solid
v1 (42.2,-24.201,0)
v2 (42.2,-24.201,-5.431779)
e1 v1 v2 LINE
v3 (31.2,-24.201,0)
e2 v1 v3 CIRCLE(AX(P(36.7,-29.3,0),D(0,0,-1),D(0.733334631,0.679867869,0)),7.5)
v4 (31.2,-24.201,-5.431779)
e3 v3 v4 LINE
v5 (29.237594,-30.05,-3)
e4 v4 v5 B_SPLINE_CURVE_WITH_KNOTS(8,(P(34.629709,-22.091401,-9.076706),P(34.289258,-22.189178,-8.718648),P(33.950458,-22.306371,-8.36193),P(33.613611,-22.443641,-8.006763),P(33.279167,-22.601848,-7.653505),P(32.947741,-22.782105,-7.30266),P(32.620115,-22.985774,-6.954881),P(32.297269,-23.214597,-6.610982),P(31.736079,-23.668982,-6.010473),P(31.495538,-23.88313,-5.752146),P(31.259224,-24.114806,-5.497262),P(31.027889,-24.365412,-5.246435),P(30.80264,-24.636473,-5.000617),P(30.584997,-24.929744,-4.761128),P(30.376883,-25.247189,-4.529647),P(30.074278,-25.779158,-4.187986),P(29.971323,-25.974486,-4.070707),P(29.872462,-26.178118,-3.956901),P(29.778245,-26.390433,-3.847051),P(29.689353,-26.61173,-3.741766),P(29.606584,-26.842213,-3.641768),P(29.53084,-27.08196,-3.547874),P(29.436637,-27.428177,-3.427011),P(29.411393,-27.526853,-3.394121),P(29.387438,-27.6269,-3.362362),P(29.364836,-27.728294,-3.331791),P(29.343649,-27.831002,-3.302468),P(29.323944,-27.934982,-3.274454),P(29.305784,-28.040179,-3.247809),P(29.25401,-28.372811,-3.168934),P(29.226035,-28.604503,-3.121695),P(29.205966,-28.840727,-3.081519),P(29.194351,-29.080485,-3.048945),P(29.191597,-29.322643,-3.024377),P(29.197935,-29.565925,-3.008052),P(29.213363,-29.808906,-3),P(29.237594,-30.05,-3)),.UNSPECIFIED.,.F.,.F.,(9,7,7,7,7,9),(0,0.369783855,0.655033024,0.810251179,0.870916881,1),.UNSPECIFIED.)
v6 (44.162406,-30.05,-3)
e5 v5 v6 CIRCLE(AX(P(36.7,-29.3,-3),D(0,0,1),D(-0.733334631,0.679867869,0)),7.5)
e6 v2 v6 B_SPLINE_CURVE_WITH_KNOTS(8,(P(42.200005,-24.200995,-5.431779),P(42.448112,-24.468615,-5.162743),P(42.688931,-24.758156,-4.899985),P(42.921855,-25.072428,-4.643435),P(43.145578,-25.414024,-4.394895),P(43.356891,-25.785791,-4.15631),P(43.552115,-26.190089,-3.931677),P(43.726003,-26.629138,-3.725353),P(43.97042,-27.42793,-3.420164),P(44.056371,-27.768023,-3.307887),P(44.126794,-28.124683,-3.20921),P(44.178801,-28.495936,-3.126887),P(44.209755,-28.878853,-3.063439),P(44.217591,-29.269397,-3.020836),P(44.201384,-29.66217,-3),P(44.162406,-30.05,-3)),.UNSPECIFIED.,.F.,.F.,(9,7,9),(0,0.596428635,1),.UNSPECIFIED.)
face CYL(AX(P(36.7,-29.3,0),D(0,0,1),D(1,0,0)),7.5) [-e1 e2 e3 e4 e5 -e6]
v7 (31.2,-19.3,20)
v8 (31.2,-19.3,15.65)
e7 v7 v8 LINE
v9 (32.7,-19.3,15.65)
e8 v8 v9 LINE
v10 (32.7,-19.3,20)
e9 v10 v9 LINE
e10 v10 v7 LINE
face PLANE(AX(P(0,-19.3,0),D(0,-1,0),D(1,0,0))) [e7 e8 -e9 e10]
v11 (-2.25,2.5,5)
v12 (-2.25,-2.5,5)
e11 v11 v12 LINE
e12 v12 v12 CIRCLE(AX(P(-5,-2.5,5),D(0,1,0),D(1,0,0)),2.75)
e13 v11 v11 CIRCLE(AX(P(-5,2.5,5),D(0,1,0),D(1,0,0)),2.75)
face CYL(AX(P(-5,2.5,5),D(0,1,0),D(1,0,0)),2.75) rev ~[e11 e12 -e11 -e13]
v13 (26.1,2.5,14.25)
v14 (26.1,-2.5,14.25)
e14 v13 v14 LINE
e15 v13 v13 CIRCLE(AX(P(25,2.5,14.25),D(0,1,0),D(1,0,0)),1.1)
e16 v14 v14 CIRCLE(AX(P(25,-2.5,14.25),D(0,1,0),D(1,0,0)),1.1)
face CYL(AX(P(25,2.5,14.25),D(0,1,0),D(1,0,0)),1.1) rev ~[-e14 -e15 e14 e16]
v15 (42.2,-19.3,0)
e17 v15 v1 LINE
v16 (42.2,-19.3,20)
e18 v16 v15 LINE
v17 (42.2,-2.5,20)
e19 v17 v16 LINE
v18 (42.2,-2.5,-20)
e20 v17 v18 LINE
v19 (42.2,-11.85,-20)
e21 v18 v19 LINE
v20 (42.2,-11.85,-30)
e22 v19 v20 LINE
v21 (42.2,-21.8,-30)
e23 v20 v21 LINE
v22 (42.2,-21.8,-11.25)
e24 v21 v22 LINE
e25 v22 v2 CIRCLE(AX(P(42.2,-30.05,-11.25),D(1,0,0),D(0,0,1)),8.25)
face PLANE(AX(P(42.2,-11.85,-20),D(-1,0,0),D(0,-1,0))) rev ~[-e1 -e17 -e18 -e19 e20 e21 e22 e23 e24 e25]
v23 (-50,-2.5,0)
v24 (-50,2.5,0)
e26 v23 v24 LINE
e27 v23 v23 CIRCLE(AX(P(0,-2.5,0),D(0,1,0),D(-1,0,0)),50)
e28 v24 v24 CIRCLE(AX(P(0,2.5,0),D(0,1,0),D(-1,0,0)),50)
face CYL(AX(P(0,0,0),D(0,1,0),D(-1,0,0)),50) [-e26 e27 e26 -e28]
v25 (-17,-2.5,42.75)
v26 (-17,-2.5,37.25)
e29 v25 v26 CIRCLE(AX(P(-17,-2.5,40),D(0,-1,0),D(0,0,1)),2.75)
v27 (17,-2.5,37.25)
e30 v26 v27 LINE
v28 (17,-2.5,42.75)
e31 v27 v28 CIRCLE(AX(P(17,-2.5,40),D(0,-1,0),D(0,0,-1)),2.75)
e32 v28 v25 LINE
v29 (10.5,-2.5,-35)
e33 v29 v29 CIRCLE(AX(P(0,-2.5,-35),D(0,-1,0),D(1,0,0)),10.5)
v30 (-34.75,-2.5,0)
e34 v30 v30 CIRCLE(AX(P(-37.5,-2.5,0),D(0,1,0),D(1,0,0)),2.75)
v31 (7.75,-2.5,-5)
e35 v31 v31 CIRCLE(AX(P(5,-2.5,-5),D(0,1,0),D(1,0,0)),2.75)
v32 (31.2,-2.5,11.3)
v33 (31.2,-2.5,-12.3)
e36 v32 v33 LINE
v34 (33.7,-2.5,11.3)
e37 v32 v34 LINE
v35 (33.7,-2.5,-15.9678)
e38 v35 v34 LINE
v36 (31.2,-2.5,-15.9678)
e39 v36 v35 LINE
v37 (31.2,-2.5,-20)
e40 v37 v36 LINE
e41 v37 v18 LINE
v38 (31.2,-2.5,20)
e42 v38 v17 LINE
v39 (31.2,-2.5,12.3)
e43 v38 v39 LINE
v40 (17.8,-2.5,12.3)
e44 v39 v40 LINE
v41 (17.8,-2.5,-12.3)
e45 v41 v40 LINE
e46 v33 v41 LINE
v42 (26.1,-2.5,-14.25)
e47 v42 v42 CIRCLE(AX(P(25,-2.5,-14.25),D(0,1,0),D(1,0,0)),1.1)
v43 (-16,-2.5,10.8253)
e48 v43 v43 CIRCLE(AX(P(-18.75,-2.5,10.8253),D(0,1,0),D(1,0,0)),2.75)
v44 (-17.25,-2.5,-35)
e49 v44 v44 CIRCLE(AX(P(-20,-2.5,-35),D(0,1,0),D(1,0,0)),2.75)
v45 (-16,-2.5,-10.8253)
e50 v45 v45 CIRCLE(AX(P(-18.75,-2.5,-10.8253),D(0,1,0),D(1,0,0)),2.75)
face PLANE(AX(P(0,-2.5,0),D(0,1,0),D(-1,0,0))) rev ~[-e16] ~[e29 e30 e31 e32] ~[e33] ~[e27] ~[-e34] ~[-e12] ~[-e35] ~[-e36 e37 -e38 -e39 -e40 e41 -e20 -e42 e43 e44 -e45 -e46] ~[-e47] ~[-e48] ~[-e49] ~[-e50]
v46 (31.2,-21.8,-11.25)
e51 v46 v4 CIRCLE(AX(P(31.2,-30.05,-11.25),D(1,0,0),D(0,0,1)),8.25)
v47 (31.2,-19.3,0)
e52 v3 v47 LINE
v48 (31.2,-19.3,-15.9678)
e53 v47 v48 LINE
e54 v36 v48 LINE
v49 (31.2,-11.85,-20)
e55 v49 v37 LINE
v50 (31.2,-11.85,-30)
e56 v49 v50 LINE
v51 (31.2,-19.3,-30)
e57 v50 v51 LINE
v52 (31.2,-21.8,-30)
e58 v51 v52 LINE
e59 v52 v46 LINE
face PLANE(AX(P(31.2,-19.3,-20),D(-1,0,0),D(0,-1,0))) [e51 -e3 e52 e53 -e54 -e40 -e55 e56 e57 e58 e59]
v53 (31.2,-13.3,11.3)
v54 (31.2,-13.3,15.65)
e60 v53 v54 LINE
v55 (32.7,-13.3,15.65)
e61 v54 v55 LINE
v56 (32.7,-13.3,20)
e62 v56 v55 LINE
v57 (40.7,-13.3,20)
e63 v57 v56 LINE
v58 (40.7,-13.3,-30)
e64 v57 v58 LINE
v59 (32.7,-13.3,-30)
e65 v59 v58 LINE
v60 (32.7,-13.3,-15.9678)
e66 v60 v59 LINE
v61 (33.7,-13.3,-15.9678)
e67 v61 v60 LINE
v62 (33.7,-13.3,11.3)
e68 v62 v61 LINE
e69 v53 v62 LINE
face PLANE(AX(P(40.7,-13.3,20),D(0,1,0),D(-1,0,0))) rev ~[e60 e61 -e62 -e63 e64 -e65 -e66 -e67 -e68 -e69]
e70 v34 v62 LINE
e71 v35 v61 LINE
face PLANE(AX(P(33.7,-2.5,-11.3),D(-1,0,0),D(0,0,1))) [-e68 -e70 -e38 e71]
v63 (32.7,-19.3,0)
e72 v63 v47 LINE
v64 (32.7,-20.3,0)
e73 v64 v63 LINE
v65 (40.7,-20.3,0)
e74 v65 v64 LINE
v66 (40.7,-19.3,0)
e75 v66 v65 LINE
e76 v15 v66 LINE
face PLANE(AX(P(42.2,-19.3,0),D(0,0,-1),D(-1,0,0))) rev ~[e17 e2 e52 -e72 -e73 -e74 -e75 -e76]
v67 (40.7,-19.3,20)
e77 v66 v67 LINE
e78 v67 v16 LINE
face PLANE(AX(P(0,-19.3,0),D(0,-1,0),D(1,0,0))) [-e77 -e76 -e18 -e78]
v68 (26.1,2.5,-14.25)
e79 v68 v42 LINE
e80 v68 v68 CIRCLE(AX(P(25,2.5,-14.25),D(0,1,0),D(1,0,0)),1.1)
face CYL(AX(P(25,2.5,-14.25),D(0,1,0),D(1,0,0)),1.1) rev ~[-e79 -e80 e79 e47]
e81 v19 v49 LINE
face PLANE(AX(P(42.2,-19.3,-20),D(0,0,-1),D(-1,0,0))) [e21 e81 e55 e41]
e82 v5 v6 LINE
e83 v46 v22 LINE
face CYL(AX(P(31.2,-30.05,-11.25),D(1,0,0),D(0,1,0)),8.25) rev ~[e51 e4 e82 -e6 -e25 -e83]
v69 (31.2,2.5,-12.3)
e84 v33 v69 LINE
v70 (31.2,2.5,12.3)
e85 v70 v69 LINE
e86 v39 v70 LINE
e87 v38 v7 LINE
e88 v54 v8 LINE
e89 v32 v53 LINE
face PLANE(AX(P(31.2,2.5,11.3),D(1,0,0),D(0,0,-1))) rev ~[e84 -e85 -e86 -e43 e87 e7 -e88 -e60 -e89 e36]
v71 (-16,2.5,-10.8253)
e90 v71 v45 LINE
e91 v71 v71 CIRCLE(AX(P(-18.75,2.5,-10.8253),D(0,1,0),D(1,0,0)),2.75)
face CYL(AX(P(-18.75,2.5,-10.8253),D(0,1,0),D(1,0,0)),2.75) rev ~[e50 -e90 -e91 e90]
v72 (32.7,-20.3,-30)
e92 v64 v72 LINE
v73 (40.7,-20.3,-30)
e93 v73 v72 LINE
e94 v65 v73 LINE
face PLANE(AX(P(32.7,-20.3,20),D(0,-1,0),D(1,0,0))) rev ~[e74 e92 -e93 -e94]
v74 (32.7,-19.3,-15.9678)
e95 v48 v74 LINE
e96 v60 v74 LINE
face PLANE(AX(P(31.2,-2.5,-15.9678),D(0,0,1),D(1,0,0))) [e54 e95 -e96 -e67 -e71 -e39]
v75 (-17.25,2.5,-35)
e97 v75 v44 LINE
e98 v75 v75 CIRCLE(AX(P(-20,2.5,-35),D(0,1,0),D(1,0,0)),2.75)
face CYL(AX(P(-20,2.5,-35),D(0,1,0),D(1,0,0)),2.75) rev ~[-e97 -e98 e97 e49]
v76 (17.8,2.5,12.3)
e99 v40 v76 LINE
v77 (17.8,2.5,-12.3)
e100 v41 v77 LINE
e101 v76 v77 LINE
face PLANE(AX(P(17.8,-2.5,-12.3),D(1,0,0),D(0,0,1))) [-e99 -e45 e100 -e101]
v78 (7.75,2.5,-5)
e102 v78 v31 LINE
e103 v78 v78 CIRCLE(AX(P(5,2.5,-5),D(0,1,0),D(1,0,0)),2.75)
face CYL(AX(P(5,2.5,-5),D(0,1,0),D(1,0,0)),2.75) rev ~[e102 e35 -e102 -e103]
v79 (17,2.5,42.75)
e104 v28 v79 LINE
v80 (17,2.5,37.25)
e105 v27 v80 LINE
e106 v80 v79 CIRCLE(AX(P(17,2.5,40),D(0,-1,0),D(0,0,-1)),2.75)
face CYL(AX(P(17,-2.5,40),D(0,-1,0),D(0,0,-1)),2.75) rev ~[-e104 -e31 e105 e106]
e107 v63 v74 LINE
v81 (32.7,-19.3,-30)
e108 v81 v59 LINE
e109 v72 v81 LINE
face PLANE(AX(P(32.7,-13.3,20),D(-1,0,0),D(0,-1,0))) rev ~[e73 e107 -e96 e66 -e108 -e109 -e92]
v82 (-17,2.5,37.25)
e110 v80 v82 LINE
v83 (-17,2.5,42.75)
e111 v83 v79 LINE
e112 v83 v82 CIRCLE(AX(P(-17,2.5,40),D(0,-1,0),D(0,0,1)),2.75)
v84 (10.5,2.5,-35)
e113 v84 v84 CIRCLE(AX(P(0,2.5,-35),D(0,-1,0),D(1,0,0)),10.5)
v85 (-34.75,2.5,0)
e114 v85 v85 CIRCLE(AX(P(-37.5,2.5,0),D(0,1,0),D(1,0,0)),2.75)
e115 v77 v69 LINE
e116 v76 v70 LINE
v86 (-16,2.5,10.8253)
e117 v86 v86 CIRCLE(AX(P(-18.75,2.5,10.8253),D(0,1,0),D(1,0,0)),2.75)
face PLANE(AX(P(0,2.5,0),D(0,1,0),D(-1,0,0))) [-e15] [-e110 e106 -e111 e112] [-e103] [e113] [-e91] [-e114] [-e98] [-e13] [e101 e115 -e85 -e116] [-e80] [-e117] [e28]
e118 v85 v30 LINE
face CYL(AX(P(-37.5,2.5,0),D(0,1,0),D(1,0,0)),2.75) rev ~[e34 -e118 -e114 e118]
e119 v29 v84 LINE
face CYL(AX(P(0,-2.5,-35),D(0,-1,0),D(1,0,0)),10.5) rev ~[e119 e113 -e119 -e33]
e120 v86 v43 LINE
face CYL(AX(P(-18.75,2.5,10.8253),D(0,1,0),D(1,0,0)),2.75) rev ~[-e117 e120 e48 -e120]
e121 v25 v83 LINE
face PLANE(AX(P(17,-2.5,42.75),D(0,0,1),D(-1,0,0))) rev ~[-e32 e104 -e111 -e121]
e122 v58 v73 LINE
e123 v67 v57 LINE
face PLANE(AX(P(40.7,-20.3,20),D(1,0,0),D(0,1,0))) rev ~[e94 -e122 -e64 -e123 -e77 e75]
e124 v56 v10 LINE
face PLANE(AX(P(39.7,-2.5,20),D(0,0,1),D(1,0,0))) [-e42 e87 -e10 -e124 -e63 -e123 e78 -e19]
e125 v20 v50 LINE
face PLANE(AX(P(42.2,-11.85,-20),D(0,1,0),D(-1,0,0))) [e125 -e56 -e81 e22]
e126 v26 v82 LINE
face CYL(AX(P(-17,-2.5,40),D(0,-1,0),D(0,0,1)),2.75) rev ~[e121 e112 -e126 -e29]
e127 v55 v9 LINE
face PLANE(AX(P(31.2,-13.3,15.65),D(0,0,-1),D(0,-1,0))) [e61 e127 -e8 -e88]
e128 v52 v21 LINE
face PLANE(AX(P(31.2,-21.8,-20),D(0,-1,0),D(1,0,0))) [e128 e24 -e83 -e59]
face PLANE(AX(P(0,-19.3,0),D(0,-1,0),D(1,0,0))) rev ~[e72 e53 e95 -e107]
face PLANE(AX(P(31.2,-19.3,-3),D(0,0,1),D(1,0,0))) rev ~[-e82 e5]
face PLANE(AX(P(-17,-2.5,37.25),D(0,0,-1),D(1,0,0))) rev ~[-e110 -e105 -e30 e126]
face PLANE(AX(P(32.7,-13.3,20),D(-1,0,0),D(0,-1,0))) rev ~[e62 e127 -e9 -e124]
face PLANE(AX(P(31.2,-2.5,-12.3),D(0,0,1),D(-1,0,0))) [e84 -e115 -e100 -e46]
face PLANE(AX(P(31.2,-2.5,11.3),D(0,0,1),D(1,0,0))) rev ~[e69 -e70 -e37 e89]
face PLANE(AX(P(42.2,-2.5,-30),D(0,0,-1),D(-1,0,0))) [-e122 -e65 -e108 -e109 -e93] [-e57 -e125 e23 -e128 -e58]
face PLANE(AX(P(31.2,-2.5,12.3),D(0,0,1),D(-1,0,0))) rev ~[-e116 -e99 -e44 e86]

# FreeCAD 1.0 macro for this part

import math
import FreeCAD as App
import Part
import Sketcher
from FreeCAD import Vector
Q = App.Units.Quantity


def edges_at(feature, points):
    """Names of the edges that pass closest to the given points."""
    edges = feature.Shape.Edges
    near = lambda p: min(range(len(edges)), key=lambda i: edges[i].distToShape(Part.Vertex(*p))[0])
    return sorted({f"Edge{near(p) + 1}" for p in points})


def add_polygon(sketch, points):
    """Adds a closed chain of lines whose ends are joined by coincident constraints."""
    first, n = sketch.GeometryCount, len(points)
    for a, b in zip(points, points[1:] + points[:1]):
        sketch.addGeometry(Part.LineSegment(App.Vector(*a, 0), App.Vector(*b, 0)), False)
    for i in range(n):
        sketch.addConstraint(Sketcher.Constraint("Coincident", first + i, 2, first + (i + 1) % n, 1))

doc = App.newDocument("Part")
params = doc.addObject("Spreadsheet::Sheet", "Params")
for row, (alias, value) in enumerate([
    ("sketch1_diameter", "100 mm"),
    ("pad1_length", "5 mm"),
    ("sketch2_diameter", "5.5 mm"),
    ("pocket1_length", "10 mm"),
    ("sketch3_diameter", "2.2 mm"),
    ("sketch3_width", "12.4 mm"),
    ("sketch3_height", "22.6 mm"),
    ("pocket2_length", "10 mm"),
    ("sketch4_height", "40 mm"),
    ("sketch4_width", "6 mm"),
    ("pad2_length", "11.8 mm"),
    ("sketch5_width", "2.5 mm"),
    ("sketch5_height", "40 mm"),
    ("sketch5_height2", "8.7 mm"),
    ("pad3_length", "16.8 mm"),
    ("sketch6_width", "11 mm"),
    ("sketch6_height", "20 mm"),
    ("pad4_length", "2.5 mm"),
    ("sketch7_radius", "7.5 mm"),
    ("sketch7_width", "11 mm"),
    ("pad5_length", "3 mm"),
    ("fillet_radius", "8.25 mm"),
    ("sketch8_height", "9.95 mm"),
    ("sketch8_width", "11 mm"),
    ("sketch8_width2", "6 mm"),
    ("sketch8_height2", "5 mm"),
    ("sketch8_height3", "2.5 mm"),
    ("pad6_length", "10 mm"),
    ("sketch9_diameter", "5.5 mm"),
    ("pocket3_length", "10 mm"),
    ("sketch10_diameter", "21 mm"),
    ("pocket4_length", "10 mm"),
    ("sketch11_width", "8 mm"),
    ("sketch11_height", "7 mm"),
    ("sketch12_radius", "2.75 mm"),
    ("sketch13_width", "13.4 mm"),
    ("sketch13_height", "24.6 mm"),
    ("pocket7_length", "10 mm"),
    ("sketch14_width", "6 mm"),
    ("sketch14_height", "4.35 mm"),
    ("pocket8_length", "1.5 mm"),
    ("sketch15_diameter", "5.5 mm"),
    ("pocket9_length", "10 mm"),
], start=1):
    params.set(f"A{row}", alias)
    params.set(f"B{row}", "=" + value)
    params.setAlias(f"B{row}", alias)

body = doc.addObject("PartDesign::Body", "Body")

# Sketch on XZ plane
sketch1 = body.newObject("Sketcher::SketchObject", "Sketch")
sketch1.AttachmentSupport = (doc.getObject("XZ_Plane"), [""])
sketch1.MapMode = "FlatFace"
sketch1.addGeometry(Part.Circle(Vector(0, 0, 0), Vector(0, 0, 1), 50), False)
sketch1.addConstraint([
    Sketcher.Constraint("Coincident", 0, 3, -1, 1),
    Sketcher.Constraint("Diameter", 0, Q("100 mm")),
])
sketch1.setExpression("Constraints[1]", "Params.sketch1_diameter")
pad1 = body.newObject("PartDesign::Pad", "Pad")
pad1.Profile = sketch1
pad1.setExpression("Length", "Params.pad1_length")
pad1.Midplane = True

# Sketch on XZ plane
sketch2 = body.newObject("Sketcher::SketchObject", "Sketch001")
sketch2.AttachmentSupport = (doc.getObject("XZ_Plane"), [""])
sketch2.MapMode = "FlatFace"
sketch2.AttachmentOffset = App.Placement(Vector(0, 0, -2.5), App.Rotation())
sketch2.addGeometry([
    Part.Circle(Vector(5, -5, 0), Vector(0, 0, 1), 2.75),
    Part.Circle(Vector(-5, 5, 0), Vector(0, 0, 1), 2.75),
], False)
sketch2.addConstraint([
    Sketcher.Constraint("Equal", 0, 1),
    Sketcher.Constraint("Symmetric", 0, 3, 1, 3, -1, 1),
    Sketcher.Constraint("Diameter", 0, Q("5.5 mm")),
    Sketcher.Constraint("DistanceX", 1, 3, 0, 3, Q("10 mm")),
    Sketcher.Constraint("DistanceY", 0, 3, 1, 3, Q("10 mm")),
])
sketch2.setExpression("Constraints[2]", "Params.sketch2_diameter")
pocket1 = body.newObject("PartDesign::Pocket", "Pocket")
pocket1.Profile = sketch2
pocket1.setExpression("Length", "Params.pocket1_length")
pocket1.Reversed = True

# Sketch on XZ plane
sketch3 = body.newObject("Sketcher::SketchObject", "Sketch002")
sketch3.AttachmentSupport = (doc.getObject("XZ_Plane"), [""])
sketch3.MapMode = "FlatFace"
sketch3.AttachmentOffset = App.Placement(Vector(0, 0, -2.5), App.Rotation())
add_polygon(sketch3, [(18.8, -11.3), (18.8, 11.3), (31.2, 11.3), (31.2, -11.3)])  # lines 0-3
sketch3.addGeometry(Part.Circle(Vector(25, -14.25, 0), Vector(0, 0, 1), 1.1), False)  # 4
sketch3.addGeometry(Part.Circle(Vector(25, 14.25, 0), Vector(0, 0, 1), 1.1), False)  # 5
sketch3.addConstraint([
    Sketcher.Constraint("Vertical", 0),
    Sketcher.Constraint("Horizontal", 1),
    Sketcher.Constraint("Vertical", 2),
    Sketcher.Constraint("Horizontal", 3),
    Sketcher.Constraint("Equal", 4, 5),
    Sketcher.Constraint("Symmetric", 4, 3, 5, 3, -1),
    Sketcher.Constraint("Diameter", 4, Q("2.2 mm")),
    Sketcher.Constraint("DistanceX", 1, 1, 1, 2, Q("12.4 mm")),
    Sketcher.Constraint("DistanceY", 0, 1, 0, 2, Q("22.6 mm")),
    Sketcher.Constraint("DistanceX", -1, 1, 4, 3, Q("25 mm")),
    Sketcher.Constraint("DistanceY", 4, 3, -1, 1, Q("14.25 mm")),
    Sketcher.Constraint("DistanceX", -1, 1, 0, 2, Q("18.8 mm")),
    Sketcher.Constraint("DistanceY", -1, 1, 0, 2, Q("11.3 mm")),
])
sketch3.setExpression("Constraints[10]", "Params.sketch3_diameter")
sketch3.setExpression("Constraints[11]", "Params.sketch3_width")
sketch3.setExpression("Constraints[12]", "Params.sketch3_height")
pocket2 = body.newObject("PartDesign::Pocket", "Pocket001")
pocket2.Profile = sketch3
pocket2.setExpression("Length", "Params.pocket2_length")
pocket2.Reversed = True

# Sketch on XZ plane
sketch4 = body.newObject("Sketcher::SketchObject", "Sketch003")
sketch4.AttachmentSupport = (doc.getObject("XZ_Plane"), [""])
sketch4.MapMode = "FlatFace"
sketch4.AttachmentOffset = App.Placement(Vector(0, 0, 2.5), App.Rotation())
add_polygon(sketch4, [(33.7, 20), (33.7, -20), (39.7, -20), (39.7, 20)])  # lines 0-3
sketch4.addConstraint([
    Sketcher.Constraint("Vertical", 0),
    Sketcher.Constraint("Horizontal", 1),
    Sketcher.Constraint("Vertical", 2),
    Sketcher.Constraint("Horizontal", 3),
    Sketcher.Constraint("DistanceY", 0, 2, 0, 1, Q("40 mm")),
    Sketcher.Constraint("DistanceY", 0, 2, -1, 1, Q("20 mm")),
    Sketcher.Constraint("DistanceX", 1, 1, 1, 2, Q("6 mm")),
    Sketcher.Constraint("DistanceX", -1, 1, 0, 2, Q("33.7 mm")),
])
sketch4.setExpression("Constraints[8]", "Params.sketch4_height")
sketch4.setExpression("Constraints[10]", "Params.sketch4_width")
pad2 = body.newObject("PartDesign::Pad", "Pad001")
pad2.Profile = sketch4
pad2.setExpression("Length", "Params.pad2_length")

# Sketch on XZ plane
sketch5 = body.newObject("Sketcher::SketchObject", "Sketch004")
sketch5.AttachmentSupport = (doc.getObject("XZ_Plane"), [""])
sketch5.MapMode = "FlatFace"
sketch5.AttachmentOffset = App.Placement(Vector(0, 0, 2.5), App.Rotation())
add_polygon(sketch5, [(42.2, 20), (39.7, 20), (39.7, -20), (42.2, -20)])  # lines 0-3
add_polygon(sketch5, [(33.7, -15.9678), (31.2, -15.9678), (31.2, -20), (33.7, -20)])  # lines 4-7
add_polygon(sketch5, [(31.2, 20), (31.2, 11.3), (33.7, 11.3), (33.7, 20)])  # lines 8-11
sketch5.addConstraint([
    Sketcher.Constraint("Horizontal", 0),
    Sketcher.Constraint("Vertical", 1),
    Sketcher.Constraint("Horizontal", 2),
    Sketcher.Constraint("Vertical", 3),
    Sketcher.Constraint("Horizontal", 4),
    Sketcher.Constraint("Vertical", 5),
    Sketcher.Constraint("Horizontal", 6),
    Sketcher.Constraint("Vertical", 7),
    Sketcher.Constraint("Vertical", 8),
    Sketcher.Constraint("Horizontal", 9),
    Sketcher.Constraint("Vertical", 10),
    Sketcher.Constraint("Horizontal", 11),
    Sketcher.Constraint("Symmetric", 6, 2, 10, 2, -1),
    Sketcher.Constraint("Horizontal", 2, 2, 5, 2),
    Sketcher.Constraint("Horizontal", 3, 2, 10, 2),
    Sketcher.Constraint("Vertical", 5, 2, 8, 2),
    Sketcher.Constraint("Equal", 2, 4),
    Sketcher.Constraint("DistanceX", 0, 2, 0, 1, Q("2.5 mm")),
    Sketcher.Constraint("DistanceY", 1, 2, 1, 1, Q("40 mm")),
    Sketcher.Constraint("DistanceY", 8, 2, 8, 1, Q("8.7 mm")),
    Sketcher.Constraint("DistanceX", 4, 2, 2, 2, Q("11 mm")),
    Sketcher.Constraint("DistanceX", -1, 1, 0, 2, Q("39.7 mm")),
    Sketcher.Constraint("DistanceY", 5, 2, 5, 1, Q("4.0322 mm")),
])
sketch5.setExpression("Constraints[29]", "Params.sketch5_width")
sketch5.setExpression("Constraints[30]", "Params.sketch5_height")
sketch5.setExpression("Constraints[31]", "Params.sketch5_height2")
pad3 = body.newObject("PartDesign::Pad", "Pad002")
pad3.Profile = sketch5
pad3.setExpression("Length", "Params.pad3_length")

# Sketch on XZ plane
sketch6 = body.newObject("Sketcher::SketchObject", "Sketch005")
sketch6.AttachmentSupport = (doc.getObject("XZ_Plane"), [""])
sketch6.MapMode = "FlatFace"
sketch6.AttachmentOffset = App.Placement(Vector(0, 0, 19.3), App.Rotation())
add_polygon(sketch6, [(31.2, -20), (42.2, -20), (42.2, 0), (31.2, 0)])  # lines 0-3
sketch6.addConstraint([
    Sketcher.Constraint("Horizontal", 0),
    Sketcher.Constraint("Vertical", 1),
    Sketcher.Constraint("Horizontal", 2),
    Sketcher.Constraint("Vertical", 3),
    Sketcher.Constraint("PointOnObject", 1, 2, -1),
    Sketcher.Constraint("DistanceX", 0, 1, 0, 2, Q("11 mm")),
    Sketcher.Constraint("DistanceY", 1, 1, 1, 2, Q("20 mm")),
    Sketcher.Constraint("DistanceX", -1, 1, 0, 2, Q("42.2 mm")),
])
sketch6.setExpression("Constraints[9]", "Params.sketch6_width")
sketch6.setExpression("Constraints[10]", "Params.sketch6_height")
pad4 = body.newObject("PartDesign::Pad", "Pad003")
pad4.Profile = sketch6
pad4.setExpression("Length", "Params.pad4_length")

# Sketch on XY plane
sketch7 = body.newObject("Sketcher::SketchObject", "Sketch006")
sketch7.AttachmentSupport = (doc.getObject("XY_Plane"), [""])
sketch7.MapMode = "FlatFace"
sketch7.addGeometry([
    Part.ArcOfCircle(Part.Circle(Vector(36.7, -29.3, 0), Vector(0, 0, 1), 7.5), math.radians(137.166681), math.radians(402.833319)),
    Part.LineSegment(Vector(42.2, -24.201, 0), Vector(42.2, -21.8, 0)),
    Part.LineSegment(Vector(42.2, -21.8, 0), Vector(31.2, -21.8, 0)),
    Part.LineSegment(Vector(31.2, -21.8, 0), Vector(31.2, -24.201, 0)),
], False)
sketch7.addConstraint([
    Sketcher.Constraint("Coincident", 0, 2, 1, 1),
    Sketcher.Constraint("Coincident", 1, 2, 2, 1),
    Sketcher.Constraint("Coincident", 2, 2, 3, 1),
    Sketcher.Constraint("Coincident", 3, 2, 0, 1),
    Sketcher.Constraint("Vertical", 1),
    Sketcher.Constraint("Horizontal", 2),
    Sketcher.Constraint("Vertical", 3),
    Sketcher.Constraint("Horizontal", 0, 2, 3, 2),
    Sketcher.Constraint("Radius", 0, Q("7.5 mm")),
    Sketcher.Constraint("DistanceY", 0, 3, 1, 2, Q("7.5 mm")),
    Sketcher.Constraint("DistanceX", 2, 2, 2, 1, Q("11 mm")),
    Sketcher.Constraint("DistanceX", -1, 1, 0, 3, Q("36.7 mm")),
    Sketcher.Constraint("DistanceY", 0, 3, -1, 1, Q("29.3 mm")),
])
sketch7.setExpression("Constraints[8]", "Params.sketch7_radius")
sketch7.setExpression("Constraints[10]", "Params.sketch7_width")
pad5 = body.newObject("PartDesign::Pad", "Pad004")
pad5.Profile = sketch7
pad5.setExpression("Length", "Params.pad5_length")
pad5.Reversed = True
doc.recompute()

fillet = body.newObject("PartDesign::Fillet", "Fillet")
fillet.Base = (pad5, edges_at(pad5, [(36.7, -21.8, -3)]))
fillet.setExpression("Radius", "Params.fillet_radius")

# Sketch on XY plane
sketch8 = body.newObject("Sketcher::SketchObject", "Sketch007")
sketch8.AttachmentSupport = (doc.getObject("XY_Plane"), [""])
sketch8.MapMode = "FlatFace"
sketch8.AttachmentOffset = App.Placement(Vector(0, 0, -20), App.Rotation())
add_polygon(sketch8, [(31.2, -21.8), (31.2, -19.3), (31.2, -11.85), (42.2, -11.85), (42.2, -21.8)])  # lines 0-4
add_polygon(sketch8, [(33.7, -14.3), (33.7, -19.3), (39.7, -19.3), (39.7, -14.3)])  # lines 5-8
sketch8.addConstraint([
    Sketcher.Constraint("Vertical", 0),
    Sketcher.Constraint("Vertical", 1),
    Sketcher.Constraint("Horizontal", 2),
    Sketcher.Constraint("Vertical", 3),
    Sketcher.Constraint("Horizontal", 4),
    Sketcher.Constraint("Vertical", 5),
    Sketcher.Constraint("Horizontal", 6),
    Sketcher.Constraint("Vertical", 7),
    Sketcher.Constraint("Horizontal", 8),
    Sketcher.Constraint("Horizontal", 0, 2, 5, 2),
    Sketcher.Constraint("DistanceY", 3, 2, 3, 1, Q("9.95 mm")),
    Sketcher.Constraint("DistanceX", 2, 1, 2, 2, Q("11 mm")),
    Sketcher.Constraint("DistanceX", 6, 1, 6, 2, Q("6 mm")),
    Sketcher.Constraint("DistanceY", 5, 2, 5, 1, Q("5 mm")),
    Sketcher.Constraint("DistanceY", 0, 1, 0, 2, Q("2.5 mm")),
    Sketcher.Constraint("DistanceX", -1, 1, 0, 2, Q("31.2 mm")),
    Sketcher.Constraint("DistanceY", 0, 2, -1, 1, Q("19.3 mm")),
    Sketcher.Constraint("DistanceX", -1, 1, 5, 2, Q("33.7 mm")),
])
sketch8.setExpression("Constraints[19]", "Params.sketch8_height")
sketch8.setExpression("Constraints[20]", "Params.sketch8_width")
sketch8.setExpression("Constraints[21]", "Params.sketch8_width2")
sketch8.setExpression("Constraints[22]", "Params.sketch8_height2")
sketch8.setExpression("Constraints[23]", "Params.sketch8_height3")
pad6 = body.newObject("PartDesign::Pad", "Pad005")
pad6.Profile = sketch8
pad6.setExpression("Length", "Params.pad6_length")
pad6.Reversed = True

# Sketch on XZ plane
sketch9 = body.newObject("Sketcher::SketchObject", "Sketch008")
sketch9.AttachmentSupport = (doc.getObject("XZ_Plane"), [""])
sketch9.MapMode = "FlatFace"
sketch9.AttachmentOffset = App.Placement(Vector(0, 0, -2.5), App.Rotation())
sketch9.addGeometry([
    Part.Circle(Vector(-37.5, 0, 0), Vector(0, 0, 1), 2.75),
    Part.Circle(Vector(-18.75, -10.8253, 0), Vector(0, 0, 1), 2.75),
    Part.Circle(Vector(-18.75, 10.8253, 0), Vector(0, 0, 1), 2.75),
], False)
sketch9.addConstraint([
    Sketcher.Constraint("Equal", 0, 1),
    Sketcher.Constraint("Equal", 1, 2),
    Sketcher.Constraint("Symmetric", 1, 3, 2, 3, -1),
    Sketcher.Constraint("PointOnObject", 0, 3, -1),
    Sketcher.Constraint("Diameter", 0, Q("5.5 mm")),
    Sketcher.Constraint("DistanceX", 0, 3, -1, 1, Q("37.5 mm")),
    Sketcher.Constraint("DistanceX", 1, 3, -1, 1, Q("18.75 mm")),
    Sketcher.Constraint("DistanceY", 1, 3, -1, 1, Q("10.8253 mm")),
])
sketch9.setExpression("Constraints[4]", "Params.sketch9_diameter")
pocket3 = body.newObject("PartDesign::Pocket", "Pocket002")
pocket3.Profile = sketch9
pocket3.setExpression("Length", "Params.pocket3_length")
pocket3.Reversed = True

# Sketch on XZ plane
sketch10 = body.newObject("Sketcher::SketchObject", "Sketch009")
sketch10.AttachmentSupport = (doc.getObject("XZ_Plane"), [""])
sketch10.MapMode = "FlatFace"
sketch10.AttachmentOffset = App.Placement(Vector(0, 0, 2.5), App.Rotation())
sketch10.addGeometry(Part.Circle(Vector(0, -35, 0), Vector(0, 0, 1), 10.5), False)
sketch10.addConstraint([
    Sketcher.Constraint("PointOnObject", 0, 3, -2),
    Sketcher.Constraint("Diameter", 0, Q("21 mm")),
    Sketcher.Constraint("DistanceY", 0, 3, -1, 1, Q("35 mm")),
])
sketch10.setExpression("Constraints[1]", "Params.sketch10_diameter")
pocket4 = body.newObject("PartDesign::Pocket", "Pocket003")
pocket4.Profile = sketch10
pocket4.setExpression("Length", "Params.pocket4_length")

# Sketch on XY plane
sketch11 = body.newObject("Sketcher::SketchObject", "Sketch010")
sketch11.AttachmentSupport = (doc.getObject("XY_Plane"), [""])
sketch11.MapMode = "FlatFace"
sketch11.AttachmentOffset = App.Placement(Vector(0, 0, 20), App.Rotation())
add_polygon(sketch11, [(32.7, -13.3), (32.7, -20.3), (40.7, -20.3), (40.7, -13.3)])  # lines 0-3
add_polygon(sketch11, [(39.7, -14.3), (39.7, -19.3), (33.7, -19.3), (33.7, -14.3)])  # lines 4-7
sketch11.addConstraint([
    Sketcher.Constraint("Vertical", 0),
    Sketcher.Constraint("Horizontal", 1),
    Sketcher.Constraint("Vertical", 2),
    Sketcher.Constraint("Horizontal", 3),
    Sketcher.Constraint("Vertical", 4),
    Sketcher.Constraint("Horizontal", 5),
    Sketcher.Constraint("Vertical", 6),
    Sketcher.Constraint("Horizontal", 7),
    Sketcher.Constraint("DistanceX", 4, 2, 1, 2, Q("1 mm")),
    Sketcher.Constraint("DistanceY", 1, 2, 4, 2, Q("1 mm")),
    Sketcher.Constraint("DistanceX", 0, 2, 5, 2, Q("1 mm")),
    Sketcher.Constraint("DistanceY", 6, 2, 3, 2, Q("1 mm")),
    Sketcher.Constraint("DistanceX", 1, 1, 1, 2, Q("8 mm")),
    Sketcher.Constraint("DistanceY", 0, 2, 0, 1, Q("7 mm")),
    Sketcher.Constraint("DistanceX", -1, 1, 0, 2, Q("32.7 mm")),
    Sketcher.Constraint("DistanceY", 0, 2, -1, 1, Q("20.3 mm")),
])
sketch11.setExpression("Constraints[20]", "Params.sketch11_width")
sketch11.setExpression("Constraints[21]", "Params.sketch11_height")
pocket5 = body.newObject("PartDesign::Pocket", "Pocket004")
pocket5.Profile = sketch11
pocket5.Type = "ThroughAll"

# Sketch on XZ plane
sketch12 = body.newObject("Sketcher::SketchObject", "Sketch011")
sketch12.AttachmentSupport = (doc.getObject("XZ_Plane"), [""])
sketch12.MapMode = "FlatFace"
sketch12.AttachmentOffset = App.Placement(Vector(0, 0, 2.5), App.Rotation())
sketch12.addGeometry([
    Part.ArcOfCircle(Part.Circle(Vector(-17, 40, 0), Vector(0, 0, 1), 2.75), math.radians(90), math.radians(270)),
    Part.LineSegment(Vector(-17, 37.25, 0), Vector(17, 37.25, 0)),
    Part.ArcOfCircle(Part.Circle(Vector(17, 40, 0), Vector(0, 0, 1), 2.75), math.radians(-90), math.radians(90)),
    Part.LineSegment(Vector(17, 42.75, 0), Vector(-17, 42.75, 0)),
], False)
sketch12.addConstraint([
    Sketcher.Constraint("Tangent", 0, 2, 1, 1),
    Sketcher.Constraint("Tangent", 1, 2, 2, 1),
    Sketcher.Constraint("Tangent", 2, 2, 3, 1),
    Sketcher.Constraint("Tangent", 3, 2, 0, 1),
    Sketcher.Constraint("Horizontal", 1),
    Sketcher.Constraint("Horizontal", 3),
    Sketcher.Constraint("Radius", 0, Q("2.75 mm")),
    Sketcher.Constraint("DistanceX", 0, 3, -1, 1, Q("17 mm")),
    Sketcher.Constraint("DistanceX", -1, 1, 2, 3, Q("17 mm")),
    Sketcher.Constraint("DistanceY", -1, 1, 0, 3, Q("40 mm")),
])
sketch12.setExpression("Constraints[6]", "Params.sketch12_radius")
pocket6 = body.newObject("PartDesign::Pocket", "Pocket005")
pocket6.Profile = sketch12
pocket6.Type = "ThroughAll"

# Sketch on XZ plane
sketch13 = body.newObject("Sketcher::SketchObject", "Sketch012")
sketch13.AttachmentSupport = (doc.getObject("XZ_Plane"), [""])
sketch13.MapMode = "FlatFace"
sketch13.AttachmentOffset = App.Placement(Vector(0, 0, 2.5), App.Rotation())
add_polygon(sketch13, [(31.2, -12.3), (31.2, 12.3), (17.8, 12.3), (17.8, -12.3)])  # lines 0-3
sketch13.addConstraint([
    Sketcher.Constraint("Vertical", 0),
    Sketcher.Constraint("Horizontal", 1),
    Sketcher.Constraint("Vertical", 2),
    Sketcher.Constraint("Horizontal", 3),
    Sketcher.Constraint("DistanceX", 1, 2, 1, 1, Q("13.4 mm")),
    Sketcher.Constraint("DistanceY", 0, 1, 0, 2, Q("24.6 mm")),
    Sketcher.Constraint("DistanceX", -1, 1, 0, 2, Q("31.2 mm")),
    Sketcher.Constraint("DistanceY", -1, 1, 0, 2, Q("12.3 mm")),
])
sketch13.setExpression("Constraints[8]", "Params.sketch13_width")
sketch13.setExpression("Constraints[9]", "Params.sketch13_height")
pocket7 = body.newObject("PartDesign::Pocket", "Pocket006")
pocket7.Profile = sketch13
pocket7.setExpression("Length", "Params.pocket7_length")

# Sketch on YZ plane
sketch14 = body.newObject("Sketcher::SketchObject", "Sketch013")
sketch14.AttachmentSupport = (doc.getObject("YZ_Plane"), [""])
sketch14.MapMode = "FlatFace"
sketch14.AttachmentOffset = App.Placement(Vector(0, 0, 31.2), App.Rotation())
add_polygon(sketch14, [(-19.3, 11.3), (-19.3, 15.65), (-13.3, 15.65), (-13.3, 11.3)])  # lines 0-3
sketch14.addConstraint([
    Sketcher.Constraint("Vertical", 0),
    Sketcher.Constraint("Horizontal", 1),
    Sketcher.Constraint("Vertical", 2),
    Sketcher.Constraint("Horizontal", 3),
    Sketcher.Constraint("DistanceX", 1, 1, 1, 2, Q("6 mm")),
    Sketcher.Constraint("DistanceY", 0, 1, 0, 2, Q("4.35 mm")),
    Sketcher.Constraint("DistanceX", 0, 2, -1, 1, Q("19.3 mm")),
    Sketcher.Constraint("DistanceY", -1, 1, 2, 2, Q("11.3 mm")),
])
sketch14.setExpression("Constraints[8]", "Params.sketch14_width")
sketch14.setExpression("Constraints[9]", "Params.sketch14_height")
pocket8 = body.newObject("PartDesign::Pocket", "Pocket007")
pocket8.Profile = sketch14
pocket8.setExpression("Length", "Params.pocket8_length")
pocket8.Reversed = True

# Sketch on XZ plane
sketch15 = body.newObject("Sketcher::SketchObject", "Sketch014")
sketch15.AttachmentSupport = (doc.getObject("XZ_Plane"), [""])
sketch15.MapMode = "FlatFace"
sketch15.AttachmentOffset = App.Placement(Vector(0, 0, -2.5), App.Rotation())
sketch15.addGeometry(Part.Circle(Vector(-20, -35, 0), Vector(0, 0, 1), 2.75), False)
sketch15.addConstraint([
    Sketcher.Constraint("Diameter", 0, Q("5.5 mm")),
    Sketcher.Constraint("DistanceX", 0, 3, -1, 1, Q("20 mm")),
    Sketcher.Constraint("DistanceY", 0, 3, -1, 1, Q("35 mm")),
])
sketch15.setExpression("Constraints[0]", "Params.sketch15_diameter")
pocket9 = body.newObject("PartDesign::Pocket", "Pocket008")
pocket9.Profile = sketch15
pocket9.setExpression("Length", "Params.pocket9_length")
pocket9.Reversed = True

doc.recompute()
